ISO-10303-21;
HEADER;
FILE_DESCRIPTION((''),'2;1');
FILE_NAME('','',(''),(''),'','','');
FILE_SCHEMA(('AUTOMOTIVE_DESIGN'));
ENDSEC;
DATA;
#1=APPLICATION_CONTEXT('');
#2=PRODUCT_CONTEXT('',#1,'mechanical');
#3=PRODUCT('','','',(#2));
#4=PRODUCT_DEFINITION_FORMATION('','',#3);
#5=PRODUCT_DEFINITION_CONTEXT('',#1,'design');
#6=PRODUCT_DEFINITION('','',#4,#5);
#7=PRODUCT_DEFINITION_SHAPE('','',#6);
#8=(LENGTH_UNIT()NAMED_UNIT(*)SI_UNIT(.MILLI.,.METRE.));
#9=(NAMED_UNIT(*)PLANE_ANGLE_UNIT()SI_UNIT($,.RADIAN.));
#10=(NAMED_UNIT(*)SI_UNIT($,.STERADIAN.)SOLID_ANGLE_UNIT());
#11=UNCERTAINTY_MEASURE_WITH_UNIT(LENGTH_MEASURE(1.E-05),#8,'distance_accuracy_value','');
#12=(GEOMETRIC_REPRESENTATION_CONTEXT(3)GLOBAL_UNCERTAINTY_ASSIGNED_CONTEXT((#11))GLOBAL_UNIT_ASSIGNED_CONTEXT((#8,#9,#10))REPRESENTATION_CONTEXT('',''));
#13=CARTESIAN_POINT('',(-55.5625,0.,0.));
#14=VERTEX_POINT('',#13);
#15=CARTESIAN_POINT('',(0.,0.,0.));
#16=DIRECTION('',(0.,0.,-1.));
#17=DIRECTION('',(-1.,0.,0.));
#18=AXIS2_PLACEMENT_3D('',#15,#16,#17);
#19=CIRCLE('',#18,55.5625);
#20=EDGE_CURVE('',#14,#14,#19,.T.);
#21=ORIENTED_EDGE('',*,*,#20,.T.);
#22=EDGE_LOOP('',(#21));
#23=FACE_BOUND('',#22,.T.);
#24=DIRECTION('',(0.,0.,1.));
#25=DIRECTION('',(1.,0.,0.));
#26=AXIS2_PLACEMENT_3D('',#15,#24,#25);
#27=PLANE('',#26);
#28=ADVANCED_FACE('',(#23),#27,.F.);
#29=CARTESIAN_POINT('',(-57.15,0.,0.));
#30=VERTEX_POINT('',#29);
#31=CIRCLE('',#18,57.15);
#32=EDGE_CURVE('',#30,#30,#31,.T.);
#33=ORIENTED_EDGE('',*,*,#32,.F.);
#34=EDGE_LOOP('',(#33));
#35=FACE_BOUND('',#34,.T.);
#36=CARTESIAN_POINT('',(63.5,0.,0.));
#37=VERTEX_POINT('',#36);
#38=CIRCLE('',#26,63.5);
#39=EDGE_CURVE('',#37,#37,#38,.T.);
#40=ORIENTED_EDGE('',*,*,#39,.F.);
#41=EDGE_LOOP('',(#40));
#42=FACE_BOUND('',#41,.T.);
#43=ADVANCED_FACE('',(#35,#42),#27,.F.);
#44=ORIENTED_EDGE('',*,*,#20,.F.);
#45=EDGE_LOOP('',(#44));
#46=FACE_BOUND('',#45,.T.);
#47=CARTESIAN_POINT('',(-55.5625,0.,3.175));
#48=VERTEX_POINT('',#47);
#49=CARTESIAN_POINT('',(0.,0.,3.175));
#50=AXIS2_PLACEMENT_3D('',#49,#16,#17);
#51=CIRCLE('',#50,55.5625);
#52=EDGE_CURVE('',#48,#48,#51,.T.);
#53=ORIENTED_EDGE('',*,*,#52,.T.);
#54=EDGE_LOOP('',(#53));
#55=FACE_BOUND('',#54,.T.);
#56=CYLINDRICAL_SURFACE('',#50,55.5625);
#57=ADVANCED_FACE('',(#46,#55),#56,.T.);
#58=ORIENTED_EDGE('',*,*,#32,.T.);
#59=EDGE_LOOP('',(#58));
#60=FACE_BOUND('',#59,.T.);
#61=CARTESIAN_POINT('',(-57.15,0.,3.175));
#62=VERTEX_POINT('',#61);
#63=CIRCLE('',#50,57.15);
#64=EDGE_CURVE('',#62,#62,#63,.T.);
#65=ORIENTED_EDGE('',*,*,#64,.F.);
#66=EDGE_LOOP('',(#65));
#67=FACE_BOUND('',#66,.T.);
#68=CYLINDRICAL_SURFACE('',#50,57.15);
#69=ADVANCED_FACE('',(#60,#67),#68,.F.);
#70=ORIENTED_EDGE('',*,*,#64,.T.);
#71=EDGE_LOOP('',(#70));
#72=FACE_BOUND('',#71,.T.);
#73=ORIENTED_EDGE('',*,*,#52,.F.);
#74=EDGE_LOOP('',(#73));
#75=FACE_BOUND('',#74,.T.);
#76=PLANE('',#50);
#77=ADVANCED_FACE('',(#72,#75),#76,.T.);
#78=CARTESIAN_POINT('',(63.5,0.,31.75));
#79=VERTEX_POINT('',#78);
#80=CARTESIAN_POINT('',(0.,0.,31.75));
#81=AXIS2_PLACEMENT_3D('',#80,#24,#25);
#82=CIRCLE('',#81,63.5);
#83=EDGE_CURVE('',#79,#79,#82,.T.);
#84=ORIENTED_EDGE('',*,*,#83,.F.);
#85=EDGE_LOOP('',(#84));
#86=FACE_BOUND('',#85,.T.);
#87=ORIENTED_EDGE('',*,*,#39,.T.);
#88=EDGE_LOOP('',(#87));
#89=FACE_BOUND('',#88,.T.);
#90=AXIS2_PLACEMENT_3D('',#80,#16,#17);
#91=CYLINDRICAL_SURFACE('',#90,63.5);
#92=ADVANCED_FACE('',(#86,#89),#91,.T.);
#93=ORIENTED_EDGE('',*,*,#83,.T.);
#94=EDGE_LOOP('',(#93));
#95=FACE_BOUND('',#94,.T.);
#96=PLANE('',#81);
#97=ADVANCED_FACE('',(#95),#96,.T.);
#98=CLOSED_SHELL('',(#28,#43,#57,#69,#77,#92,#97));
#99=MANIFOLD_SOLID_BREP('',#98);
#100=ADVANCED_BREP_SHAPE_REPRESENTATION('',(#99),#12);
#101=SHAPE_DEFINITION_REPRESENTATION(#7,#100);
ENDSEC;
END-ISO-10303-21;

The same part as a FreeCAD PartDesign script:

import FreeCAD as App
import Part
import Sketcher

V = App.Vector
Q = App.Units.Quantity

doc = App.newDocument("Part")
body = doc.addObject("PartDesign::Body", "Body")

# Sketch on XY plane
sketch1 = doc.addObject("Sketcher::SketchObject", "Sketch")
body.addObject(sketch1)
sketch1.AttachmentSupport = (doc.XY_Plane, [""])
sketch1.MapMode = "FlatFace"
sketch1.addGeometry(Part.Circle(V(0, 0, 0), V(0, 0, 1), 64), False)
sketch1.addConstraint([
    Sketcher.Constraint("Coincident", 0, 3, -1, 1),
    Sketcher.Constraint("Diameter", 0, Q("5 in")),
])
pad1 = doc.addObject("PartDesign::Pad", "Pad")
body.addObject(pad1)
pad1.Profile = sketch1
pad1.Length = Q("1.25 in")

# Sketch on XY plane
sketch2 = doc.addObject("Sketcher::SketchObject", "Sketch001")
body.addObject(sketch2)
sketch2.AttachmentSupport = (doc.XY_Plane, [""])
sketch2.MapMode = "FlatFace"
sketch2.addGeometry([
    Part.Circle(V(0, 0, 0), V(0, 0, 1), 57),
    Part.Circle(V(0, 0, 0), V(0, 0, 1), 56),
], False)
sketch2.addConstraint([
    Sketcher.Constraint("Coincident", 0, 3, -1, 1),
    Sketcher.Constraint("Coincident", 1, 3, -1, 1),
    Sketcher.Constraint("Diameter", 0, Q("4.5 in")),
    Sketcher.Constraint("Diameter", 1, Q("4.375 in")),
])
pocket1 = doc.addObject("PartDesign::Pocket", "Pocket")
body.addObject(pocket1)
pocket1.Profile = sketch2
pocket1.Length = Q("0.125 in")
pocket1.Reversed = True

doc.recompute()
